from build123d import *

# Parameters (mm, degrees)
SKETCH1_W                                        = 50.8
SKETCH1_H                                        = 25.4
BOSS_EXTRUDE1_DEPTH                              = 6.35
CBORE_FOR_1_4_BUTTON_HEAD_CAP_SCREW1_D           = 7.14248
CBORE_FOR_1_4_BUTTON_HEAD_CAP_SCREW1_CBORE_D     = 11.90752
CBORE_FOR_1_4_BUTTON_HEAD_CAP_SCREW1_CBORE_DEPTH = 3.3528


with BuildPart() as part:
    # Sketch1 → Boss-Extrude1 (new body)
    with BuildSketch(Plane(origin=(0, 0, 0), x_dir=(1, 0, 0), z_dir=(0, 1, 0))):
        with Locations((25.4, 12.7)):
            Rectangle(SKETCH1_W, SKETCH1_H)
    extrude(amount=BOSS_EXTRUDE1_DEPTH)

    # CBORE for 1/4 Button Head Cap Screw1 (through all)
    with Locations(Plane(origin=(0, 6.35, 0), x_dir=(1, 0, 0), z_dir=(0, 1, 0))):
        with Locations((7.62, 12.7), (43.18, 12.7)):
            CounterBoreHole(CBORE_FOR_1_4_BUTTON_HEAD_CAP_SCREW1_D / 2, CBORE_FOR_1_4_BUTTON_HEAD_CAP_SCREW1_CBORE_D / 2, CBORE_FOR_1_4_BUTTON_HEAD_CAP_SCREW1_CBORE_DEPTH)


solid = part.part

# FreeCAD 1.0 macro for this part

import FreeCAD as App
import Part
import Sketcher
Q = App.Units.Quantity


def add_polygon(sketch, points):
    """Adds a closed chain of lines whose ends are joined by coincident constraints."""
    first, n = sketch.GeometryCount, len(points)
    for a, b in zip(points, points[1:] + points[:1]):
        sketch.addGeometry(Part.LineSegment(App.Vector(*a, 0), App.Vector(*b, 0)), False)
    for i in range(n):
        sketch.addConstraint(Sketcher.Constraint("Coincident", first + i, 2, first + (i + 1) % n, 1))

doc = App.newDocument("Part")
body = doc.addObject("PartDesign::Body", "Body")

sketch1 = doc.addObject("Sketcher::SketchObject", "Sketch")
body.addObject(sketch1)
sketch1.AttachmentSupport = (doc.XZ_Plane, [""])
sketch1.MapMode = "FlatFace"
add_polygon(sketch1, [(0, -25), (0, 0), (51, 0), (51, -25)])
sketch1.addConstraint([
    Sketcher.Constraint("Vertical", 0),
    Sketcher.Constraint("Horizontal", 1),
    Sketcher.Constraint("Vertical", 2),
    Sketcher.Constraint("Horizontal", 3),
    Sketcher.Constraint("Coincident", 0, 2, -1, 1),
    Sketcher.Constraint("DistanceX", 1, 1, 1, 2, Q("2 in")),
    Sketcher.Constraint("DistanceY", 0, 1, 0, 2, Q("1 in")),
])
pad1 = doc.addObject("PartDesign::Pad", "Pad")
body.addObject(pad1)
pad1.Profile = sketch1
pad1.Length = Q("0.25 in")
pad1.Reversed = True

sketch2 = doc.addObject("Sketcher::SketchObject", "Sketch001")
body.addObject(sketch2)
sketch2.AttachmentSupport = (doc.XZ_Plane, [""])
sketch2.MapMode = "FlatFace"
sketch2.AttachmentOffset = App.Placement(App.Vector(0, 0, -0.25 * 25.4), App.Rotation())
sketch2.addGeometry([
    Part.Circle(App.Vector(7.6, -12.7, 0), App.Vector(0, 0, 1), 3.6),
    Part.Circle(App.Vector(43.2, -12.7, 0), App.Vector(0, 0, 1), 3.6),
], False)
sketch2.addConstraint([
    Sketcher.Constraint("Equal", 0, 1),
    Sketcher.Constraint("Horizontal", 0, 3, 1, 3),
    Sketcher.Constraint("Diameter", 0, Q("0.2812 in")),
    Sketcher.Constraint("DistanceX", -1, 1, 0, 3, Q("0.3 in")),
    Sketcher.Constraint("DistanceY", 0, 3, -1, 1, Q("0.5 in")),
    Sketcher.Constraint("DistanceX", -1, 1, 1, 3, Q("1.7 in")),
])
doc.recompute()
hole = doc.addObject("PartDesign::Hole", "Hole")
body.addObject(hole)
hole.Profile = sketch2
hole.ThreadType = "None"
hole.Diameter = Q("0.2812 in")
hole.DepthType = "ThroughAll"
hole.HoleCutType = "Counterbore"
hole.HoleCutDiameter = Q("0.4688 in")
hole.HoleCutDepth = Q("0.132 in")
hole.Reversed = True

doc.recompute()
